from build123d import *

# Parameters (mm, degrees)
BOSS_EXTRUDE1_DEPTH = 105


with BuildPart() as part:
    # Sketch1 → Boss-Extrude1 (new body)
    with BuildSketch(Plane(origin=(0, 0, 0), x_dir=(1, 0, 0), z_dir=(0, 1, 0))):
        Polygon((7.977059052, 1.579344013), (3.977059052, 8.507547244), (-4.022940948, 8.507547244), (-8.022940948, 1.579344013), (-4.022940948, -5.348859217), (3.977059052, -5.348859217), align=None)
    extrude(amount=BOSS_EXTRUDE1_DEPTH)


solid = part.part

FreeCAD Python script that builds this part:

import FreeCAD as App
import Part
import Sketcher
from FreeCAD import Vector
Q = App.Units.Quantity


def add_polygon(sketch, points):
    """Adds a closed chain of lines whose ends are joined by coincident constraints."""
    first, n = sketch.GeometryCount, len(points)
    for a, b in zip(points, points[1:] + points[:1]):
        sketch.addGeometry(Part.LineSegment(App.Vector(*a, 0), App.Vector(*b, 0)), False)
    for i in range(n):
        sketch.addConstraint(Sketcher.Constraint("Coincident", first + i, 2, first + (i + 1) % n, 1))

doc = App.newDocument("Part")
body = doc.addObject("PartDesign::Body", "Body")

sketch1 = body.newObject("Sketcher::SketchObject", "Sketch")
sketch1.AttachmentSupport = (doc.getObject("XZ_Plane"), [""])
sketch1.MapMode = "FlatFace"
add_polygon(sketch1, [(8, -2), (4, -9), (-4, -9), (-8, -2), (-4, 5), (4, 5)])
sketch1.addConstraint([
    Sketcher.Constraint("Horizontal", 1),
    Sketcher.Constraint("Horizontal", 4),
    Sketcher.Constraint("Parallel", 0, 3),
    Sketcher.Constraint("Parallel", 2, 5),
    Sketcher.Constraint("Horizontal", 2, 2, 5, 2),
    Sketcher.Constraint("Vertical", 1, 2, 3, 2),
    Sketcher.Constraint("Vertical", 0, 2, 4, 2),
    Sketcher.Constraint("DistanceX", 1, 2, 1, 1, Q("8 mm")),
    Sketcher.Constraint("Angle", 0, Q("-120 deg")),
    Sketcher.Constraint("Distance", 0, Q("8 mm")),
    Sketcher.Constraint("DistanceX", -1, 1, 0, 2, Q("3.977059 mm")),
    Sketcher.Constraint("DistanceY", -1, 1, 3, 2, Q("5.348859 mm")),
])
pad1 = body.newObject("PartDesign::Pad", "Pad")
pad1.Profile = sketch1
pad1.Length = 105
pad1.Reversed = True

doc.recompute()
